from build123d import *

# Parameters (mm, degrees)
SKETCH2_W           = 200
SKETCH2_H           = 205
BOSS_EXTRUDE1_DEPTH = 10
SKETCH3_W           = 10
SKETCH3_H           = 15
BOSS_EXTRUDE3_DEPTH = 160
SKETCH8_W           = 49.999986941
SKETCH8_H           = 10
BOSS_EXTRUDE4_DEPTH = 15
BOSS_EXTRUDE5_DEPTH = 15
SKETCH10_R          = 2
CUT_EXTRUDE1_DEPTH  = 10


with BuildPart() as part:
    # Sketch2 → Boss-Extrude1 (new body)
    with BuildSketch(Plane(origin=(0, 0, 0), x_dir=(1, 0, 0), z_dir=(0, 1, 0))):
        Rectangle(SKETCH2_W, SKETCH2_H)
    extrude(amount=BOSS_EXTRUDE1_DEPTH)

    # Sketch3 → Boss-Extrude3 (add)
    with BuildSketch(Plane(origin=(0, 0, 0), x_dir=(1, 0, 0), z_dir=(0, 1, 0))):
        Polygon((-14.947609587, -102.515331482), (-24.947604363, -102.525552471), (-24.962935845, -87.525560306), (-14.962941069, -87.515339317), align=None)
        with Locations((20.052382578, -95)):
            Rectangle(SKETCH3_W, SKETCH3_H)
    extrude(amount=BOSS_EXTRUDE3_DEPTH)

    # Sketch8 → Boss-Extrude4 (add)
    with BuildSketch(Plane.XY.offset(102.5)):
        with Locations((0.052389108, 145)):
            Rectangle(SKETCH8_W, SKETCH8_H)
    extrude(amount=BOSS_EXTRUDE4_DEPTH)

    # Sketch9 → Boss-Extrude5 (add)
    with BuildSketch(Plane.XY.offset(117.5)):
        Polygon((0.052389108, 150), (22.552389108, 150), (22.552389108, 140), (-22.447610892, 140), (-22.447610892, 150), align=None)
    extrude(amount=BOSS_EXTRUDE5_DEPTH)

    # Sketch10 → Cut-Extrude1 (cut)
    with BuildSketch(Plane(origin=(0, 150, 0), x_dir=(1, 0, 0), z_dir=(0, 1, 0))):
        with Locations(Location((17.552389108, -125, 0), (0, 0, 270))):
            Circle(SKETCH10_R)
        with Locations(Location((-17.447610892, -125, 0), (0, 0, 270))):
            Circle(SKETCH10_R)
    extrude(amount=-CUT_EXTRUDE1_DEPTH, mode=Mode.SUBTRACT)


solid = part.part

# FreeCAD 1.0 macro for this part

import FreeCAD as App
import Part
import Sketcher
Q = App.Units.Quantity

doc = App.newDocument("Part")
params = doc.addObject("Spreadsheet::Sheet", "Params")
for row, (alias, value) in enumerate([
    ("sketch1_width", "200 mm"),
    ("sketch1_height", "205 mm"),
    ("pad1_length", "10 mm"),
    ("sketch2_width", "10 mm"),
    ("sketch2_height", "15 mm"),
    ("sketch2_length", "10 mm"),
    ("sketch2_length2", "15 mm"),
    ("pad2_length", "160 mm"),
    ("sketch3_height", "10 mm"),
    ("pad3_length", "15 mm"),
    ("sketch4_width", "45 mm"),
    ("sketch4_height", "10 mm"),
    ("pad4_length", "15 mm"),
    ("sketch5_diameter", "4 mm"),
    ("pocket1_length", "10 mm"),
], start=1):
    params.set(f"A{row}", alias)
    params.set(f"B{row}", "=" + value)
    params.setAlias(f"B{row}", alias)

body = doc.addObject("PartDesign::Body", "Body")

# Sketch on XZ plane
sketch1 = doc.addObject("Sketcher::SketchObject", "Sketch")
body.addObject(sketch1)
sketch1.AttachmentSupport = (doc.XZ_Plane, [""])
sketch1.MapMode = "FlatFace"
sketch1.addGeometry([
    Part.LineSegment(App.Vector(-100, -102, 0), App.Vector(-100, 102, 0)),
    Part.LineSegment(App.Vector(-100, 102, 0), App.Vector(100, 102, 0)),
    Part.LineSegment(App.Vector(100, 102, 0), App.Vector(100, -102, 0)),
    Part.LineSegment(App.Vector(100, -102, 0), App.Vector(-100, -102, 0)),
], False)
sketch1.addConstraint([
    Sketcher.Constraint("Coincident", 0, 2, 1, 1),
    Sketcher.Constraint("Coincident", 1, 2, 2, 1),
    Sketcher.Constraint("Coincident", 2, 2, 3, 1),
    Sketcher.Constraint("Coincident", 3, 2, 0, 1),
    Sketcher.Constraint("Vertical", 0),
    Sketcher.Constraint("Horizontal", 1),
    Sketcher.Constraint("Vertical", 2),
    Sketcher.Constraint("Horizontal", 3),
    Sketcher.Constraint("Symmetric", 0, 2, 2, 2, -1, 1),
    Sketcher.Constraint("DistanceX", 1, 1, 1, 2, Q("200 mm")),
    Sketcher.Constraint("DistanceY", 0, 1, 0, 2, Q("205 mm")),
])
sketch1.setExpression("Constraints[9]", "Params.sketch1_width")
sketch1.setExpression("Constraints[10]", "Params.sketch1_height")
pad1 = doc.addObject("PartDesign::Pad", "Pad")
body.addObject(pad1)
pad1.Profile = sketch1
pad1.setExpression("Length", "Params.pad1_length")
pad1.Reversed = True

# Sketch on XZ plane
sketch2 = doc.addObject("Sketcher::SketchObject", "Sketch001")
body.addObject(sketch2)
sketch2.AttachmentSupport = (doc.XZ_Plane, [""])
sketch2.MapMode = "FlatFace"
sketch2.addGeometry([
    Part.LineSegment(App.Vector(-25, 103, 0), App.Vector(-15, 103, 0)),  # 0
    Part.LineSegment(App.Vector(-15, 103, 0), App.Vector(-15, 88, 0)),  # 1
    Part.LineSegment(App.Vector(-15, 88, 0), App.Vector(-25, 88, 0)),  # 2
    Part.LineSegment(App.Vector(-25, 88, 0), App.Vector(-25, 103, 0)),  # 3
    Part.LineSegment(App.Vector(15, 88, 0), App.Vector(15, 102, 0)),  # 4
    Part.LineSegment(App.Vector(15, 102, 0), App.Vector(25, 102, 0)),  # 5
    Part.LineSegment(App.Vector(25, 102, 0), App.Vector(25, 88, 0)),  # 6
    Part.LineSegment(App.Vector(25, 88, 0), App.Vector(15, 88, 0)),  # 7
], False)
sketch2.addConstraint([
    Sketcher.Constraint("Coincident", 0, 2, 1, 1),
    Sketcher.Constraint("Coincident", 1, 2, 2, 1),
    Sketcher.Constraint("Coincident", 2, 2, 3, 1),
    Sketcher.Constraint("Coincident", 3, 2, 0, 1),
    Sketcher.Constraint("Coincident", 4, 2, 5, 1),
    Sketcher.Constraint("Coincident", 5, 2, 6, 1),
    Sketcher.Constraint("Coincident", 6, 2, 7, 1),
    Sketcher.Constraint("Coincident", 7, 2, 4, 1),
    Sketcher.Constraint("Vertical", 4),
    Sketcher.Constraint("Horizontal", 5),
    Sketcher.Constraint("Vertical", 6),
    Sketcher.Constraint("Horizontal", 7),
    Sketcher.Constraint("Perpendicular", 0, 1),
    Sketcher.Constraint("Perpendicular", 1, 2),
    Sketcher.Constraint("Perpendicular", 2, 3),
    Sketcher.Constraint("DistanceX", 5, 1, 5, 2, Q("10 mm")),
    Sketcher.Constraint("DistanceY", 4, 1, 4, 2, Q("15 mm")),
    Sketcher.Constraint("Distance", 0, Q("10 mm")),
    Sketcher.Constraint("Distance", 1, Q("15 mm")),
    Sketcher.Constraint("DistanceY", -1, 1, 4, 2, Q("102.5 mm")),
    Sketcher.Constraint("DistanceX", 0, 2, -1, 1, Q("14.94761 mm")),
    Sketcher.Constraint("DistanceY", -1, 1, 0, 2, Q("102.515331 mm")),
    Sketcher.Constraint("DistanceX", 1, 2, -1, 1, Q("14.962941 mm")),
    Sketcher.Constraint("DistanceX", 2, 2, 4, 2, Q("40.015318 mm")),
])
sketch2.setExpression("Constraints[15]", "Params.sketch2_width")
sketch2.setExpression("Constraints[16]", "Params.sketch2_height")
sketch2.setExpression("Constraints[17]", "Params.sketch2_length")
sketch2.setExpression("Constraints[18]", "Params.sketch2_length2")
pad2 = doc.addObject("PartDesign::Pad", "Pad001")
body.addObject(pad2)
pad2.Profile = sketch2
pad2.setExpression("Length", "Params.pad2_length")
pad2.Reversed = True

# Sketch on XY plane
sketch3 = doc.addObject("Sketcher::SketchObject", "Sketch002")
body.addObject(sketch3)
sketch3.AttachmentSupport = (doc.XY_Plane, [""])
sketch3.MapMode = "FlatFace"
sketch3.AttachmentOffset = App.Placement(App.Vector(0, 0, 102.5), App.Rotation())
sketch3.addGeometry([
    Part.LineSegment(App.Vector(-25, 150, 0), App.Vector(-25, 140, 0)),
    Part.LineSegment(App.Vector(-25, 140, 0), App.Vector(25, 140, 0)),
    Part.LineSegment(App.Vector(25, 140, 0), App.Vector(25, 150, 0)),
    Part.LineSegment(App.Vector(25, 150, 0), App.Vector(-25, 150, 0)),
], False)
sketch3.addConstraint([
    Sketcher.Constraint("Coincident", 0, 2, 1, 1),
    Sketcher.Constraint("Coincident", 1, 2, 2, 1),
    Sketcher.Constraint("Coincident", 2, 2, 3, 1),
    Sketcher.Constraint("Coincident", 3, 2, 0, 1),
    Sketcher.Constraint("Vertical", 0),
    Sketcher.Constraint("Horizontal", 1),
    Sketcher.Constraint("Vertical", 2),
    Sketcher.Constraint("Horizontal", 3),
    Sketcher.Constraint("DistanceY", 0, 2, 0, 1, Q("10 mm")),
    Sketcher.Constraint("DistanceY", -1, 1, 0, 2, Q("140 mm")),
    Sketcher.Constraint("DistanceX", 1, 1, 1, 2, Q("49.999987 mm")),
    Sketcher.Constraint("DistanceX", 0, 2, -1, 1, Q("24.947604 mm")),
])
sketch3.setExpression("Constraints[8]", "Params.sketch3_height")
pad3 = doc.addObject("PartDesign::Pad", "Pad002")
body.addObject(pad3)
pad3.Profile = sketch3
pad3.setExpression("Length", "Params.pad3_length")

# Sketch on XY plane
sketch4 = doc.addObject("Sketcher::SketchObject", "Sketch003")
body.addObject(sketch4)
sketch4.AttachmentSupport = (doc.XY_Plane, [""])
sketch4.MapMode = "FlatFace"
sketch4.AttachmentOffset = App.Placement(App.Vector(0, 0, 117.5), App.Rotation())
sketch4.addGeometry([
    Part.LineSegment(App.Vector(23, 150, 0), App.Vector(-22, 150, 0)),
    Part.LineSegment(App.Vector(-22, 150, 0), App.Vector(-22, 140, 0)),
    Part.LineSegment(App.Vector(-22, 140, 0), App.Vector(23, 140, 0)),
    Part.LineSegment(App.Vector(23, 140, 0), App.Vector(23, 150, 0)),
], False)
sketch4.addConstraint([
    Sketcher.Constraint("Coincident", 0, 2, 1, 1),
    Sketcher.Constraint("Coincident", 1, 2, 2, 1),
    Sketcher.Constraint("Coincident", 2, 2, 3, 1),
    Sketcher.Constraint("Coincident", 3, 2, 0, 1),
    Sketcher.Constraint("Horizontal", 0),
    Sketcher.Constraint("Vertical", 1),
    Sketcher.Constraint("Horizontal", 2),
    Sketcher.Constraint("Vertical", 3),
    Sketcher.Constraint("DistanceX", 0, 2, 0, 1, Q("45 mm")),
    Sketcher.Constraint("DistanceY", 1, 2, 1, 1, Q("10 mm")),
    Sketcher.Constraint("DistanceY", -1, 1, 0, 2, Q("150 mm")),
    Sketcher.Constraint("DistanceX", 0, 2, -1, 1, Q("22.447611 mm")),
])
sketch4.setExpression("Constraints[8]", "Params.sketch4_width")
sketch4.setExpression("Constraints[9]", "Params.sketch4_height")
pad4 = doc.addObject("PartDesign::Pad", "Pad003")
body.addObject(pad4)
pad4.Profile = sketch4
pad4.setExpression("Length", "Params.pad4_length")

# Sketch on XZ plane
sketch5 = doc.addObject("Sketcher::SketchObject", "Sketch004")
body.addObject(sketch5)
sketch5.AttachmentSupport = (doc.XZ_Plane, [""])
sketch5.MapMode = "FlatFace"
sketch5.AttachmentOffset = App.Placement(App.Vector(0, 0, -150), App.Rotation())
sketch5.addGeometry([
    Part.Circle(App.Vector(17.6, 125, 0), App.Vector(0, 0, 1), 2),
    Part.Circle(App.Vector(-17.4, 125, 0), App.Vector(0, 0, 1), 2),
], False)
sketch5.addConstraint([
    Sketcher.Constraint("Equal", 0, 1),
    Sketcher.Constraint("Horizontal", 0, 3, 1, 3),
    Sketcher.Constraint("Diameter", 0, Q("4 mm")),
    Sketcher.Constraint("DistanceY", -1, 1, 0, 3, Q("125 mm")),
    Sketcher.Constraint("DistanceX", 1, 3, 0, 3, Q("35 mm")),
    Sketcher.Constraint("DistanceX", -1, 1, 0, 3, Q("17.552389 mm")),
])
sketch5.setExpression("Constraints[2]", "Params.sketch5_diameter")
pocket1 = doc.addObject("PartDesign::Pocket", "Pocket")
body.addObject(pocket1)
pocket1.Profile = sketch5
pocket1.setExpression("Length", "Params.pocket1_length")
pocket1.Reversed = True

doc.recompute()
